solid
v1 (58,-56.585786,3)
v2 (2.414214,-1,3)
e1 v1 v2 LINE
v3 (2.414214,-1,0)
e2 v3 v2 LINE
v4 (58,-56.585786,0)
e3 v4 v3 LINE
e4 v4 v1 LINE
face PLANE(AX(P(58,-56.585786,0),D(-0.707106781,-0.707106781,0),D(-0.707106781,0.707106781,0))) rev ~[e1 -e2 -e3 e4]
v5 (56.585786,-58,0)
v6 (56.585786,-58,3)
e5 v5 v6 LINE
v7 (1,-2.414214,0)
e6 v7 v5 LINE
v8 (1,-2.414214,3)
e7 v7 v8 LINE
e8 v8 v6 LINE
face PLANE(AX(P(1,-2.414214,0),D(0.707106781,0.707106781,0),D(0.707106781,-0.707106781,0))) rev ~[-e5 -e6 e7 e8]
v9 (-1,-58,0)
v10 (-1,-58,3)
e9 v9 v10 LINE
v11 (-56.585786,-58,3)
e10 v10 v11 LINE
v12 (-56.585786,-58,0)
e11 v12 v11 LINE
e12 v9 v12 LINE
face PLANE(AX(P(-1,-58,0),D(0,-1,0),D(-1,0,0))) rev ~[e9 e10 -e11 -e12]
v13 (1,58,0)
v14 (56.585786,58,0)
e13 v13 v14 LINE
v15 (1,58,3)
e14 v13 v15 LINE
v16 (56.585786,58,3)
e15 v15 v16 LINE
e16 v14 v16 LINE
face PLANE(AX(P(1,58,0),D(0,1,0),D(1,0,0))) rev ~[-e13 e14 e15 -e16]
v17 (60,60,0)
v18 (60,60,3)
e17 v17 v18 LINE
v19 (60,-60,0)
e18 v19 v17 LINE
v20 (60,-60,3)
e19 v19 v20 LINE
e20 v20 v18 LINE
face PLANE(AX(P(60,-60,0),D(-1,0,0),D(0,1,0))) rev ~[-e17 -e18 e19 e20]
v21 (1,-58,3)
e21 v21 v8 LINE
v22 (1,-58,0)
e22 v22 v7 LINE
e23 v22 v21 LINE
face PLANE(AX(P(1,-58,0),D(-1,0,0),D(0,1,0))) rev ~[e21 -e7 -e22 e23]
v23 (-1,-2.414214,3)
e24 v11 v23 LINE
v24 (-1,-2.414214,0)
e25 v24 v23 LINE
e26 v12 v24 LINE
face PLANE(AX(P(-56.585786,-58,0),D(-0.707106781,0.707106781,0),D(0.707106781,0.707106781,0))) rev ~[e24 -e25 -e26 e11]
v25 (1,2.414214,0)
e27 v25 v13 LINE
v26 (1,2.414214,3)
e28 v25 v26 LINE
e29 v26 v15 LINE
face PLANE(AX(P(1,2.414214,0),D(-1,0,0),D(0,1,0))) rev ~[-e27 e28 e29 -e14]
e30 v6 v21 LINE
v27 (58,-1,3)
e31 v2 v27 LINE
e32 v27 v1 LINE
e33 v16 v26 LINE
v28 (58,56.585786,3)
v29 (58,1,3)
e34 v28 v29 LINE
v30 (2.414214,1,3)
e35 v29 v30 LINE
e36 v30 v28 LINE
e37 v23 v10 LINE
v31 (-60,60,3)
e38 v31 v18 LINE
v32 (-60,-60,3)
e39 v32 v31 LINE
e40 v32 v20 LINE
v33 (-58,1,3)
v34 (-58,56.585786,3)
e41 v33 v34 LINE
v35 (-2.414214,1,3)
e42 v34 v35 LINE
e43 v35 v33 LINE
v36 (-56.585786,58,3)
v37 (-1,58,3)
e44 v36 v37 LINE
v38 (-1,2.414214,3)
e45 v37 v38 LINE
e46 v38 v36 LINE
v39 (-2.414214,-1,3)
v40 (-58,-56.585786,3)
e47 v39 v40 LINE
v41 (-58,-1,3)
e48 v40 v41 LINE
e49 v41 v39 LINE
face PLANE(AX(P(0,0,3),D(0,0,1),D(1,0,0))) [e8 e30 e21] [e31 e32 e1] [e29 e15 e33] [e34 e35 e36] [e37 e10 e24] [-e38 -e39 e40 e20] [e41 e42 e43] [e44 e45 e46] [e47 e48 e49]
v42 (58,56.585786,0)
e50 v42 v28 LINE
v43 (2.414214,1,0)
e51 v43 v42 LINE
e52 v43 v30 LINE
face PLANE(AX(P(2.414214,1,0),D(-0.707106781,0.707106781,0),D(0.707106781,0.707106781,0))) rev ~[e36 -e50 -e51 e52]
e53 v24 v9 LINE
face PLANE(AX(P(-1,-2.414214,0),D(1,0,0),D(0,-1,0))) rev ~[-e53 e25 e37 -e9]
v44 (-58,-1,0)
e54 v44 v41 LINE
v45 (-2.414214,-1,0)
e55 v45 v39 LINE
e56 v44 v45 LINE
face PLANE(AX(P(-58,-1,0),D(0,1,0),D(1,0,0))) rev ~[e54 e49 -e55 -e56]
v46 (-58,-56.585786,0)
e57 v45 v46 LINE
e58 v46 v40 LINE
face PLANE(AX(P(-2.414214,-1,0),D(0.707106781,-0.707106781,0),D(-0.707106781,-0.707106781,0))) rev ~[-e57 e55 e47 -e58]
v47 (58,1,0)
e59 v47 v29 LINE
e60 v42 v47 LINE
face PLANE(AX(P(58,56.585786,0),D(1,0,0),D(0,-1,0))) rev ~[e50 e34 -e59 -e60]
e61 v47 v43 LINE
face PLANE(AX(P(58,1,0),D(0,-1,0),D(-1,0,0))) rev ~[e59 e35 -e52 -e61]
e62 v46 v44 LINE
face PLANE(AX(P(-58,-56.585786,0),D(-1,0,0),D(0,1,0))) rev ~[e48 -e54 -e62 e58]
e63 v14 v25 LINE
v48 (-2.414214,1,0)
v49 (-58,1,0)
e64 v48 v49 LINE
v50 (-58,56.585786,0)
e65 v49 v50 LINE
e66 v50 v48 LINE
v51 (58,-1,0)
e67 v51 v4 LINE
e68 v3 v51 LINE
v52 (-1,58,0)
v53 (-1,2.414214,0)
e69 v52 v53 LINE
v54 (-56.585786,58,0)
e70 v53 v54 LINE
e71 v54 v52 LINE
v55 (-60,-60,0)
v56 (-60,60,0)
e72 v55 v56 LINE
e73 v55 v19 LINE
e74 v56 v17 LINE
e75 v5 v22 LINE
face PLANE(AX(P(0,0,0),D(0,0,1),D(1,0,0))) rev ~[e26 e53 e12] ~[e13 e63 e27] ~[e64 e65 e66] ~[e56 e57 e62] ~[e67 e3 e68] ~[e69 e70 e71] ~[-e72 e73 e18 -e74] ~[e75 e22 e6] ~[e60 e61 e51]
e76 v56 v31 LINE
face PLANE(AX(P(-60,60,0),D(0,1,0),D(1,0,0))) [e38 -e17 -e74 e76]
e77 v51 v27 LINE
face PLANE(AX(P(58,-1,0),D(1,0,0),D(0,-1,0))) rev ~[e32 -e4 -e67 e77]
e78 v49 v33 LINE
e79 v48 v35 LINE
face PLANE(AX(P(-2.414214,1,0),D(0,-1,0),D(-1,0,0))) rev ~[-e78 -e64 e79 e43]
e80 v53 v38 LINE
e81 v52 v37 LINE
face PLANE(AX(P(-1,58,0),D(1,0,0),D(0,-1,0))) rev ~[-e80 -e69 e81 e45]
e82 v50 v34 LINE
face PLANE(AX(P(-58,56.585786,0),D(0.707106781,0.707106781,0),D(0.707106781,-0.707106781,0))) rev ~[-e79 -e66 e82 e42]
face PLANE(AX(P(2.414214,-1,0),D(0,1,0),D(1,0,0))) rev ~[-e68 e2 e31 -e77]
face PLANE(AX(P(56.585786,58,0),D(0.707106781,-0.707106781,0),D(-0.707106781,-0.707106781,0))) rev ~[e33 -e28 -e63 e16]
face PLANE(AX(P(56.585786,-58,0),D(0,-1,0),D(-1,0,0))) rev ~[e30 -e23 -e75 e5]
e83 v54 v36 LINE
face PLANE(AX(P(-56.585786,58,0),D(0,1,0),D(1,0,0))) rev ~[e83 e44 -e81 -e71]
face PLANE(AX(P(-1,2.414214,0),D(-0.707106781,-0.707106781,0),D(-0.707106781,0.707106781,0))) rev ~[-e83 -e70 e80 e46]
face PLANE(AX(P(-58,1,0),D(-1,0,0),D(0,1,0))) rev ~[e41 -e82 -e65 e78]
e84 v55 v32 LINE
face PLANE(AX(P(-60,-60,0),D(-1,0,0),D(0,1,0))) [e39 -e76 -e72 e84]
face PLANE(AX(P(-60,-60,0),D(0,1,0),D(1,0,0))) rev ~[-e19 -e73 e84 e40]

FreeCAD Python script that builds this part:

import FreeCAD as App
import Part
import Sketcher


def add_polygon(sketch, points):
    """Adds a closed chain of lines whose ends are joined by coincident constraints."""
    first, n = sketch.GeometryCount, len(points)
    for a, b in zip(points, points[1:] + points[:1]):
        sketch.addGeometry(Part.LineSegment(App.Vector(*a, 0), App.Vector(*b, 0)), False)
    for i in range(n):
        sketch.addConstraint(Sketcher.Constraint("Coincident", first + i, 2, first + (i + 1) % n, 1))

doc = App.newDocument("Part")
body = doc.addObject("PartDesign::Body", "Body")

# Sketch on XY plane
sketch1 = body.newObject("Sketcher::SketchObject", "Sketch")
sketch1.AttachmentSupport = (doc.getObject("XY_Plane"), [""])
sketch1.MapMode = "FlatFace"
add_polygon(sketch1, [(-60, 60), (-60, -60), (60, -60), (60, 60)])  # lines 0-3
add_polygon(sketch1, [(-1, -2), (-1, -58), (-57, -58)])  # lines 4-6
add_polygon(sketch1, [(-2, -1), (-58, -57), (-58, -1)])  # lines 7-9
add_polygon(sketch1, [(57, -58), (1, -58), (1, -2)])  # lines 10-12
add_polygon(sketch1, [(58, -1), (58, -57), (2, -1)])  # lines 13-15
add_polygon(sketch1, [(-2, 1), (-58, 1), (-58, 57)])  # lines 16-18
add_polygon(sketch1, [(-1, 58), (-1, 2), (-57, 58)])  # lines 19-21
add_polygon(sketch1, [(58, 57), (58, 1), (2, 1)])  # lines 22-24
add_polygon(sketch1, [(57, 58), (1, 2), (1, 58)])  # lines 25-27
sketch1.addConstraint([
    Sketcher.Constraint("Vertical", 0),
    Sketcher.Constraint("Horizontal", 1),
    Sketcher.Constraint("Vertical", 2),
    Sketcher.Constraint("Horizontal", 3),
    Sketcher.Constraint("Vertical", 4),
    Sketcher.Constraint("Horizontal", 5),
    Sketcher.Constraint("Vertical", 8),
    Sketcher.Constraint("Horizontal", 9),
    Sketcher.Constraint("Horizontal", 10),
    Sketcher.Constraint("Vertical", 11),
    Sketcher.Constraint("Vertical", 13),
    Sketcher.Constraint("Horizontal", 15),
    Sketcher.Constraint("Horizontal", 16),
    Sketcher.Constraint("Vertical", 17),
    Sketcher.Constraint("Vertical", 19),
    Sketcher.Constraint("Horizontal", 21),
    Sketcher.Constraint("Vertical", 22),
    Sketcher.Constraint("Horizontal", 23),
    Sketcher.Constraint("Vertical", 26),
    Sketcher.Constraint("Horizontal", 27),
    Sketcher.Constraint("Symmetric", 0, 2, 2, 2, -1, 1),
    Sketcher.Constraint("Symmetric", 15, 2, 16, 2, -1, 1),
    Sketcher.Constraint("Symmetric", 11, 2, 19, 2, -1, 1),
    Sketcher.Constraint("Symmetric", 12, 2, 20, 2, -1, 1),
    Sketcher.Constraint("Symmetric", 8, 2, 22, 2, -1, 1),
    Sketcher.Constraint("Symmetric", 6, 2, 25, 2, -1, 1),
    Sketcher.Constraint("Symmetric", 5, 2, 27, 2, -1, 1),
    Sketcher.Constraint("Symmetric", 4, 2, 10, 2, -2),
    Sketcher.Constraint("Symmetric", 7, 2, 13, 2, -2),
    Sketcher.Constraint("Symmetric", 9, 2, 14, 2, -2),
    Sketcher.Constraint("Parallel", 6, 7),
    Sketcher.Constraint("Perpendicular", 7, 12),
    Sketcher.Constraint("Parallel", 12, 14),
    Sketcher.Constraint("Parallel", 14, 18),
    Sketcher.Constraint("Perpendicular", 20, 24),
    Sketcher.Constraint("Horizontal", 6, 2, 11, 2),
    Sketcher.Constraint("Horizontal", 17, 2, 24, 2),
    Sketcher.Constraint("Vertical", 9, 2, 18, 2),
    Sketcher.Constraint("Equal", 5, 9),
    Sketcher.Constraint("Equal", 3, 0),
    Sketcher.Constraint("DistanceX", 1, 1, 1, 2, 120.0),
    Sketcher.Constraint("DistanceX", 4, 2, -1, 1, 1.0),
    Sketcher.Constraint("DistanceY", 4, 2, -1, 1, 58.0),
    Sketcher.Constraint("DistanceX", 7, 2, -1, 1, 58.0),
    Sketcher.Constraint("DistanceY", 8, 2, -1, 1, 1.0),
    Sketcher.Constraint("DistanceX", 5, 2, 5, 1, 55.585786),
])
pad1 = body.newObject("PartDesign::Pad", "Pad")
pad1.Profile = sketch1
pad1.Length = 3

doc.recompute()
